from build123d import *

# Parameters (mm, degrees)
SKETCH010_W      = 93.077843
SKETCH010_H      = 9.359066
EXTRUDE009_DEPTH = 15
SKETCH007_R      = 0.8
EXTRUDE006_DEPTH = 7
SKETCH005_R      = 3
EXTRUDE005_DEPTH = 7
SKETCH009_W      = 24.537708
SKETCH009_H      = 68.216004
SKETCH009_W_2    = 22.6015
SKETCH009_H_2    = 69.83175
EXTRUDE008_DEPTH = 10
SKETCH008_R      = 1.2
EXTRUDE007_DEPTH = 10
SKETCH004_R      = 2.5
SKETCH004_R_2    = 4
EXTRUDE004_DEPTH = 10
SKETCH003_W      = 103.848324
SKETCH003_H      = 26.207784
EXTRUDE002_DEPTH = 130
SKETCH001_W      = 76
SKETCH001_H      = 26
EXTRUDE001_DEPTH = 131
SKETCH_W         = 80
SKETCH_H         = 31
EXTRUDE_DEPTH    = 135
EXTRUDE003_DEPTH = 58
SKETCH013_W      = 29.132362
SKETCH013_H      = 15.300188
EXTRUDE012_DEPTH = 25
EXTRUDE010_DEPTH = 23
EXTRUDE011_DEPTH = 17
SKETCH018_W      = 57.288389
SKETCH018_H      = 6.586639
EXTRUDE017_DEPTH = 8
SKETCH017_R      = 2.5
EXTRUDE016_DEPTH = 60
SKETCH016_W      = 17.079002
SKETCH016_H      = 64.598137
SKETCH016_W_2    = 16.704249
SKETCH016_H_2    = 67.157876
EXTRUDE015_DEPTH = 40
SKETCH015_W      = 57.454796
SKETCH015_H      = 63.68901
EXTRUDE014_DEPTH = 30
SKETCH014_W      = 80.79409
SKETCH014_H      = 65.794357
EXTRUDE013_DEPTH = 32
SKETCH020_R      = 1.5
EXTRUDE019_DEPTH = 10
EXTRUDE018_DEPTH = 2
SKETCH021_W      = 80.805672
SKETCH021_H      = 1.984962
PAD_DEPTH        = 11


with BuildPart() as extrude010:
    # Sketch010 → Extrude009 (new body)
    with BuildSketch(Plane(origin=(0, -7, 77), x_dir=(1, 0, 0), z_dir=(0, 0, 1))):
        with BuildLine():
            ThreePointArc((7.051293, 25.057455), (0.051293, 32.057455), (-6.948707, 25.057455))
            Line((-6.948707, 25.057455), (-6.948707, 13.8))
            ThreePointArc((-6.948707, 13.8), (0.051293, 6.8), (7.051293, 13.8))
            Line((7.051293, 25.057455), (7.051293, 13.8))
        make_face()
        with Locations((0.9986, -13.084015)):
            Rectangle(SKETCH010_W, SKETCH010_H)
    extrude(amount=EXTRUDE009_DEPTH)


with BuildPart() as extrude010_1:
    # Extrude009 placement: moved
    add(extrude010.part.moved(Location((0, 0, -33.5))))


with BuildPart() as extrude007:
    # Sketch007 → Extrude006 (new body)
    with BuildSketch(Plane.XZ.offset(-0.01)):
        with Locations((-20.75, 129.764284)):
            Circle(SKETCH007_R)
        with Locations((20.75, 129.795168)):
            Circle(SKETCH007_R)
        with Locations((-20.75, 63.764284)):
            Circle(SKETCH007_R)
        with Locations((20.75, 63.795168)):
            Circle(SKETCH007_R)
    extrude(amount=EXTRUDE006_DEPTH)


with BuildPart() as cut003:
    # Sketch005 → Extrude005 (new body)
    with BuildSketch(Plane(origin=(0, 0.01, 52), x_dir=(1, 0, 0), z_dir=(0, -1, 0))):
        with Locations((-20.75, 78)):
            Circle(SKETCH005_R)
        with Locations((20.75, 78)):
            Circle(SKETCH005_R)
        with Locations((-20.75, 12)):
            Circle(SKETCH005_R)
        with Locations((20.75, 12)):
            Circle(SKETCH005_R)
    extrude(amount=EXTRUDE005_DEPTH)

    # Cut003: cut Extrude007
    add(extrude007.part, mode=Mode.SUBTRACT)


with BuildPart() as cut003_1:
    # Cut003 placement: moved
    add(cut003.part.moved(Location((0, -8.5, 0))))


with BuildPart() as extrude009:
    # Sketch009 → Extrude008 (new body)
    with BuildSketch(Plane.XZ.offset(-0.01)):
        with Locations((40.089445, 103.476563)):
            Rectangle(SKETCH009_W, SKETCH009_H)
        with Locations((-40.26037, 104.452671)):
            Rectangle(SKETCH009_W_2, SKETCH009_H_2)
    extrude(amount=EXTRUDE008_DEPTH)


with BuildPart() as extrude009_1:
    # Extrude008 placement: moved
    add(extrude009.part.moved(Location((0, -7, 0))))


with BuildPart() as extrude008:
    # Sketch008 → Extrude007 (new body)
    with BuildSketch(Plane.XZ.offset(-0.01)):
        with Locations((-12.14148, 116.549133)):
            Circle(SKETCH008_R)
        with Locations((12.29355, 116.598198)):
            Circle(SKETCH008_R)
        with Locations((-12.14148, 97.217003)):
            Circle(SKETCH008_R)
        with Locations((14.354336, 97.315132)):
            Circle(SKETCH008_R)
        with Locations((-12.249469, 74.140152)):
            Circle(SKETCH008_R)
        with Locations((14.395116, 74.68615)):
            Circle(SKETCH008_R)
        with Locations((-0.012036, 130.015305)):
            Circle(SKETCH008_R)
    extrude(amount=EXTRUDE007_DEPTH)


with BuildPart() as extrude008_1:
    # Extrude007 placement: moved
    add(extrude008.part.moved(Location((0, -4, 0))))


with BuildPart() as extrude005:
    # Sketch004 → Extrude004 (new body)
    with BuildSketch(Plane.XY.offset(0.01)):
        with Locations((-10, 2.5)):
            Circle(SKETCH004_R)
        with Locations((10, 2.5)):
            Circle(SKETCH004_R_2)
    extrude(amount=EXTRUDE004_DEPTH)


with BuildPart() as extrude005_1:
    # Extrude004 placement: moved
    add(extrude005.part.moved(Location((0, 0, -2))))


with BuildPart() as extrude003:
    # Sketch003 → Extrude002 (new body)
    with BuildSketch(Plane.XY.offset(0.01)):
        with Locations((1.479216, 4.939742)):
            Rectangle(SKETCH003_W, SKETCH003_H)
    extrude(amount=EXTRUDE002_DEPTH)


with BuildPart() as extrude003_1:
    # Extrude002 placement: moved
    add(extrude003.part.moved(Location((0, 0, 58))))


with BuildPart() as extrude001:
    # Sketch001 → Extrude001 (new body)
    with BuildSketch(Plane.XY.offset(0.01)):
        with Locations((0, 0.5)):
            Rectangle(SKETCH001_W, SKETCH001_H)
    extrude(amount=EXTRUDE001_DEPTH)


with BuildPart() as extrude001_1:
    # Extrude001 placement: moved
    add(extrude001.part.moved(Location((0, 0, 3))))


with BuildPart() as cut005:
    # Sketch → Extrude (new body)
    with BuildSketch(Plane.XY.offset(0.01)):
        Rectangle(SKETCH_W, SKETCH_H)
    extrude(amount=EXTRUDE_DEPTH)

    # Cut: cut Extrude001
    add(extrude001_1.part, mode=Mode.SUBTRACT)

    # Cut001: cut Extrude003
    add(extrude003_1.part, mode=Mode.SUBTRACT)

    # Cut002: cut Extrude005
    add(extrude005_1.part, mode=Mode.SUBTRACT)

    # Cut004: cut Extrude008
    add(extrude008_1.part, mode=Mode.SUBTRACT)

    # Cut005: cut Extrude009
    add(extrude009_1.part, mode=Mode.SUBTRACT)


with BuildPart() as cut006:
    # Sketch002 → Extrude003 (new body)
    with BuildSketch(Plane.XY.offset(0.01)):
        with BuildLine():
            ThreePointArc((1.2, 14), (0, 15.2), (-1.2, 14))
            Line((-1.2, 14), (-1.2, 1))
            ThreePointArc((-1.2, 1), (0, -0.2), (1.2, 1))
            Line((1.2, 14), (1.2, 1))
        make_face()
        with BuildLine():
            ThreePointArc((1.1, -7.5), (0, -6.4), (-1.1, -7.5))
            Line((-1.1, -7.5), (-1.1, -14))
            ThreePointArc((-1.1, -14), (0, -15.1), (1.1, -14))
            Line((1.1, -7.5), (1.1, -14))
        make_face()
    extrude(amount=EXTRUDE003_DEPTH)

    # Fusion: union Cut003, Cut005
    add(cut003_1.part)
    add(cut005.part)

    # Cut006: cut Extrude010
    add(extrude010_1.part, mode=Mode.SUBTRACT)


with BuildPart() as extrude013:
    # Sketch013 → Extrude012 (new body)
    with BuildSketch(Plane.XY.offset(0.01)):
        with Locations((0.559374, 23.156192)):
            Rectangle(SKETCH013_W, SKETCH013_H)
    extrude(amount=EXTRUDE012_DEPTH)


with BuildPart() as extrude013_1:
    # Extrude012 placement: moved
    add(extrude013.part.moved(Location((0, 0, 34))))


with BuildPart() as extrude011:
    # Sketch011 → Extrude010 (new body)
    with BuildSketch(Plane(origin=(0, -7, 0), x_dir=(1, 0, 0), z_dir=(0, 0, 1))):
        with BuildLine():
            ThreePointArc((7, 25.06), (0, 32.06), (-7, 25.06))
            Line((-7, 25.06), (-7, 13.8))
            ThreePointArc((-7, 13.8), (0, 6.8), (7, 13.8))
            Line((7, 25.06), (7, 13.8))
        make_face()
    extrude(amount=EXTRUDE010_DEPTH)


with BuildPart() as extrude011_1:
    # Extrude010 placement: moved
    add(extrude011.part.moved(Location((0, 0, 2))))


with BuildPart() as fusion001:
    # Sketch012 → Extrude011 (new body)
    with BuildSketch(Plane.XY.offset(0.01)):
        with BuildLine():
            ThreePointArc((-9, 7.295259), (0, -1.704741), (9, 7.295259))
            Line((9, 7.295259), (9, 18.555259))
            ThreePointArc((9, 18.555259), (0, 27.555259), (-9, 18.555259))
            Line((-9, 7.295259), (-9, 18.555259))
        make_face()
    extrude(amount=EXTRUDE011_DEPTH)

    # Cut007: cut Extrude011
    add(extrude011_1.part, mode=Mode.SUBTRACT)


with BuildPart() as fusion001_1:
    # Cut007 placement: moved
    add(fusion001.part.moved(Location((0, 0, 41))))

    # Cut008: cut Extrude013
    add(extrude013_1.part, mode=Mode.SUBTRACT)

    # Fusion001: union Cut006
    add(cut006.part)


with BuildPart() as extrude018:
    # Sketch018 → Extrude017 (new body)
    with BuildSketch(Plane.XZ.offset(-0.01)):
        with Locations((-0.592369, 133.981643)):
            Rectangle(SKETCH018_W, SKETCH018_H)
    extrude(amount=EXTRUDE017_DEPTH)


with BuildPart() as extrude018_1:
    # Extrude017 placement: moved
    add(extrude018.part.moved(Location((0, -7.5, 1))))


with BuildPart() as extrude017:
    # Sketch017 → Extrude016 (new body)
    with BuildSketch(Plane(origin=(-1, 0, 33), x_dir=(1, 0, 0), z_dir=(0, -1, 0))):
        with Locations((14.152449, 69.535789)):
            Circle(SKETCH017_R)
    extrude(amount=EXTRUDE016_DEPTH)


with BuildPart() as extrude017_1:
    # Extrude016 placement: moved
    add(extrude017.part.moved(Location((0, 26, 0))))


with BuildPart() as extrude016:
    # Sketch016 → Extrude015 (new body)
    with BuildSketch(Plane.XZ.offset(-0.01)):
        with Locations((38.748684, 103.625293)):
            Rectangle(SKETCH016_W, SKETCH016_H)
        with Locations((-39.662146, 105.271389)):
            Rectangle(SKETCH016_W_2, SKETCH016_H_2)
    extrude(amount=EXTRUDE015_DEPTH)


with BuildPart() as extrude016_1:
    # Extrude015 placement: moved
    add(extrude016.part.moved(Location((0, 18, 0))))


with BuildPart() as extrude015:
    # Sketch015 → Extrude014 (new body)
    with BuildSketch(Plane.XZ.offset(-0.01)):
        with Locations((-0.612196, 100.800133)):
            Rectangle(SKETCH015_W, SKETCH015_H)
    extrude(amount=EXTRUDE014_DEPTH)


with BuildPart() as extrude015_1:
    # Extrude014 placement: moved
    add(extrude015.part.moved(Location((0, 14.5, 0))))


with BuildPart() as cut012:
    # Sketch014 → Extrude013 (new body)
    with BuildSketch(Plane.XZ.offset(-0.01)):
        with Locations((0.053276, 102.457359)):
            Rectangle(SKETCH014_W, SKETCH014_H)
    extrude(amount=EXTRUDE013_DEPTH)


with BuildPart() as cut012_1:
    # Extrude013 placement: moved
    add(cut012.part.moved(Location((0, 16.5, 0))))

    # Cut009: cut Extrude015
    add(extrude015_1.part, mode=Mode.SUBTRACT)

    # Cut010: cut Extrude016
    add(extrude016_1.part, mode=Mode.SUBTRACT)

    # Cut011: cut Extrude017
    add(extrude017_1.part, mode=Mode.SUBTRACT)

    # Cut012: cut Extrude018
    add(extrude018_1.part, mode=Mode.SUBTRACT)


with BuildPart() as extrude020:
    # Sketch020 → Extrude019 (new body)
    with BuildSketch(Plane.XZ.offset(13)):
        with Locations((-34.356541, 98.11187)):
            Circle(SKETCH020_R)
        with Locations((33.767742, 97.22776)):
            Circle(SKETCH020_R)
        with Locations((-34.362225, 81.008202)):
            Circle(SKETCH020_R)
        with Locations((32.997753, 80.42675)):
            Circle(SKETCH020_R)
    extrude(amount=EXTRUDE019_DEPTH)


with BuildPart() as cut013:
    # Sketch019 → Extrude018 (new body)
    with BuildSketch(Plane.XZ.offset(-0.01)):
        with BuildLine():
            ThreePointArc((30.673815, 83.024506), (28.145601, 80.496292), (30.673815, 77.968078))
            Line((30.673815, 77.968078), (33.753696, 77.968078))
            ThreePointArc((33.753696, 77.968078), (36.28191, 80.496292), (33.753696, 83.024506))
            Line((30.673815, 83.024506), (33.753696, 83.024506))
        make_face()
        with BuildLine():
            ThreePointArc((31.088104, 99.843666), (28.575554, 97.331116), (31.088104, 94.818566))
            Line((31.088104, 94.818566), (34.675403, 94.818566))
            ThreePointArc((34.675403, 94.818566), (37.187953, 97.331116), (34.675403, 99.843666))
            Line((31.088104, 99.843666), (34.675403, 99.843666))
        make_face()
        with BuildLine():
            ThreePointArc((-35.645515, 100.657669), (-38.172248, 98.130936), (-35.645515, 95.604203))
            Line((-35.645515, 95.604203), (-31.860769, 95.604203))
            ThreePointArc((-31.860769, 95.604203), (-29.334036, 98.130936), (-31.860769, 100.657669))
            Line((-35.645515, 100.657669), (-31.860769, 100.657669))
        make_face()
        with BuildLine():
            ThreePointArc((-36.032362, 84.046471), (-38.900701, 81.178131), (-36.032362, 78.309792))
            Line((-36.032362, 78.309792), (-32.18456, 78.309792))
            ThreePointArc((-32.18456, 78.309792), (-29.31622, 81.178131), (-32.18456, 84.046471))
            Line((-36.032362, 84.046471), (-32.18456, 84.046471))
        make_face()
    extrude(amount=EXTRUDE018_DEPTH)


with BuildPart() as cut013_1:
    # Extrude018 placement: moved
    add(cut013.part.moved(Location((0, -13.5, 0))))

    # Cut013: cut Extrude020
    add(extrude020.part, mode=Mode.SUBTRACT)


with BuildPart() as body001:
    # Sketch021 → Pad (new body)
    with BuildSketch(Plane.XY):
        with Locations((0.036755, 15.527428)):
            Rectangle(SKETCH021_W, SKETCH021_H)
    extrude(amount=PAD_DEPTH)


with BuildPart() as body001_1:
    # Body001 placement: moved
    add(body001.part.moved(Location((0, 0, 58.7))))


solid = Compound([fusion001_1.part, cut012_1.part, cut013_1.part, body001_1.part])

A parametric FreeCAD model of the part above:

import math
import FreeCAD as App
import Part
import Sketcher

V = App.Vector
Q = App.Units.Quantity


def add_polygon(sketch, points):
    """Adds a closed chain of lines whose ends are joined by coincident constraints."""
    first, n = sketch.GeometryCount, len(points)
    for a, b in zip(points, points[1:] + points[:1]):
        sketch.addGeometry(Part.LineSegment(App.Vector(*a, 0), App.Vector(*b, 0)), False)
    for i in range(n):
        sketch.addConstraint(Sketcher.Constraint("Coincident", first + i, 2, first + (i + 1) % n, 1))

doc = App.newDocument("Part")
body = doc.addObject("PartDesign::Body", "Body")
body.AllowCompound = True

sketch1 = body.newObject("Sketcher::SketchObject", "Sketch")
sketch1.AttachmentSupport = (doc.getObject("XY_Plane"), [""])
sketch1.MapMode = "FlatFace"
sketch1.AttachmentOffset = App.Placement(V(0, 0, 77), App.Rotation())
sketch1.addGeometry(Part.ArcOfCircle(Part.Circle(V(0, 18, 0), V(0, 0, 1), 7), math.radians(0), math.radians(180)), False)
sketch1.addGeometry(Part.LineSegment(V(-7, 18, 0), V(-7, 7, 0)), False)
sketch1.addGeometry(Part.ArcOfCircle(Part.Circle(V(0, 7, 0), V(0, 0, 1), 7), math.radians(180), math.radians(360)), False)
sketch1.addGeometry(Part.LineSegment(V(7, 7, 0), V(7, 18, 0)), False)
add_polygon(sketch1, [(-46, -15), (-46, -25), (48, -25), (48, -15)])
sketch1.addConstraint([
    Sketcher.Constraint("Tangent", 0, 2, 1, 1),
    Sketcher.Constraint("Tangent", 1, 2, 2, 1),
    Sketcher.Constraint("Tangent", 2, 2, 3, 1),
    Sketcher.Constraint("Tangent", 3, 2, 0, 1),
    Sketcher.Constraint("Vertical", 1),
    Sketcher.Constraint("Vertical", 3),
    Sketcher.Constraint("Vertical", 4),
    Sketcher.Constraint("Horizontal", 5),
    Sketcher.Constraint("Vertical", 6),
    Sketcher.Constraint("Horizontal", 7),
    Sketcher.Constraint("Radius", 0, Q("7 mm")),
    Sketcher.Constraint("DistanceY", -1, 1, 2, 3, Q("6.8 mm")),
    Sketcher.Constraint("DistanceX", 5, 1, 5, 2, Q("93.077843 mm")),
    Sketcher.Constraint("DistanceY", 1, 2, 1, 1, Q("11.257455 mm")),
    Sketcher.Constraint("DistanceY", 4, 2, 4, 1, Q("9.359066 mm")),
    Sketcher.Constraint("DistanceX", 4, 2, -1, 1, Q("45.540321 mm")),
    Sketcher.Constraint("DistanceY", 4, 2, -1, 1, Q("24.763548 mm")),
    Sketcher.Constraint("DistanceX", 2, 2, 5, 2, Q("40.486228 mm")),
])
pad1 = body.newObject("PartDesign::Pad", "Pad")
pad1.Profile = sketch1
pad1.Length = 15
body2 = doc.addObject("PartDesign::Body", "Body001")
body2.AllowCompound = True
doc.recompute()

body.Placement = App.Placement(V(0, 0, -33.5), App.Rotation(V(0, 0, 1), 0))
boolean = body2.newObject("PartDesign::Boolean", "Boolean")
boolean.Type = "Fuse"
boolean.addObjects([body])
body3 = doc.addObject("PartDesign::Body", "Body002")
body3.AllowCompound = True

sketch2 = body3.newObject("Sketcher::SketchObject", "Sketch001")
sketch2.AttachmentSupport = (doc.getObject("XZ_Plane002"), [""])
sketch2.MapMode = "FlatFace"
sketch2.AttachmentOffset = App.Placement(V(0, 0, -0.01), App.Rotation())
sketch2.addGeometry([
    Part.Circle(V(-20.8, 129.8, 0), V(0, 0, 1), 0.8),
    Part.Circle(V(20.8, 129.8, 0), V(0, 0, 1), 0.8),
    Part.Circle(V(-20.8, 63.8, 0), V(0, 0, 1), 0.8),
    Part.Circle(V(20.8, 63.8, 0), V(0, 0, 1), 0.8),
], False)
sketch2.addConstraint([
    Sketcher.Constraint("Equal", 0, 1),
    Sketcher.Constraint("Equal", 1, 2),
    Sketcher.Constraint("Equal", 2, 3),
    Sketcher.Constraint("Vertical", 0, 3, 2, 3),
    Sketcher.Constraint("Vertical", 1, 3, 3, 3),
    Sketcher.Constraint("Diameter", 0, Q("1.6 mm")),
    Sketcher.Constraint("DistanceY", 2, 3, 0, 3, Q("66 mm")),
    Sketcher.Constraint("DistanceY", 3, 3, 1, 3, Q("66 mm")),
    Sketcher.Constraint("DistanceX", 0, 3, 1, 3, Q("41.5 mm")),
    Sketcher.Constraint("DistanceX", 0, 3, -1, 1, Q("20.75 mm")),
    Sketcher.Constraint("DistanceY", -1, 1, 0, 3, Q("129.764284 mm")),
    Sketcher.Constraint("DistanceY", -1, 1, 1, 3, Q("129.795168 mm")),
])
pad2 = body3.newObject("PartDesign::Pad", "Pad001")
pad2.Profile = sketch2
pad2.Length = 7
body4 = doc.addObject("PartDesign::Body", "Body003")
body4.AllowCompound = True

sketch3 = body4.newObject("Sketcher::SketchObject", "Sketch002")
sketch3.AttachmentSupport = (doc.getObject("XZ_Plane003"), [""])
sketch3.MapMode = "FlatFace"
sketch3.AttachmentOffset = App.Placement(V(0, 0, -0.01), App.Rotation())
sketch3.addGeometry([
    Part.Circle(V(-20.8, 130, 0), V(0, 0, 1), 3),
    Part.Circle(V(20.8, 130, 0), V(0, 0, 1), 3),
    Part.Circle(V(-20.8, 64, 0), V(0, 0, 1), 3),
    Part.Circle(V(20.8, 64, 0), V(0, 0, 1), 3),
], False)
sketch3.addConstraint([
    Sketcher.Constraint("Equal", 0, 1),
    Sketcher.Constraint("Equal", 1, 2),
    Sketcher.Constraint("Equal", 2, 3),
    Sketcher.Constraint("Symmetric", 0, 3, 1, 3, -2),
    Sketcher.Constraint("Symmetric", 2, 3, 3, 3, -2),
    Sketcher.Constraint("Vertical", 0, 3, 2, 3),
    Sketcher.Constraint("Diameter", 0, Q("6 mm")),
    Sketcher.Constraint("DistanceY", -1, 1, 0, 3, Q("130 mm")),
    Sketcher.Constraint("DistanceY", -1, 1, 2, 3, Q("64 mm")),
    Sketcher.Constraint("DistanceX", 0, 3, 1, 3, Q("41.5 mm")),
])
pad3 = body4.newObject("PartDesign::Pad", "Pad002")
pad3.Profile = sketch3
pad3.Length = 7
doc.recompute()

boolean2 = body4.newObject("PartDesign::Boolean", "Boolean001")
boolean2.Type = "Cut"
boolean2.addObjects([body3])
body5 = doc.addObject("PartDesign::Body", "Body004")
body5.AllowCompound = True
doc.recompute()

body4.Placement = App.Placement(V(0, -8.5, 0), App.Rotation(V(0, 0, 1), 0))
boolean3 = body5.newObject("PartDesign::Boolean", "Boolean002")
boolean3.Type = "Fuse"
boolean3.addObjects([body4])
body6 = doc.addObject("PartDesign::Body", "Body005")
body6.AllowCompound = True

sketch4 = body6.newObject("Sketcher::SketchObject", "Sketch003")
sketch4.AttachmentSupport = (doc.getObject("XZ_Plane005"), [""])
sketch4.MapMode = "FlatFace"
sketch4.AttachmentOffset = App.Placement(V(0, 0, -0.01), App.Rotation())
add_polygon(sketch4, [(28, 138), (28, 69), (52, 69), (52, 138)])
add_polygon(sketch4, [(-52, 139), (-52, 70), (-29, 70), (-29, 139)])
sketch4.addConstraint([
    Sketcher.Constraint("Vertical", 0),
    Sketcher.Constraint("Horizontal", 1),
    Sketcher.Constraint("Vertical", 2),
    Sketcher.Constraint("Horizontal", 3),
    Sketcher.Constraint("Vertical", 4),
    Sketcher.Constraint("Horizontal", 5),
    Sketcher.Constraint("Vertical", 6),
    Sketcher.Constraint("Horizontal", 7),
    Sketcher.Constraint("DistanceX", 5, 1, 5, 2, Q("22.6015 mm")),
    Sketcher.Constraint("DistanceX", 1, 1, 1, 2, Q("24.537708 mm")),
    Sketcher.Constraint("DistanceY", 4, 2, 4, 1, Q("69.83175 mm")),
    Sketcher.Constraint("DistanceX", -1, 1, 1, 2, Q("52.358299 mm")),
    Sketcher.Constraint("DistanceY", 0, 2, 0, 1, Q("68.216004 mm")),
    Sketcher.Constraint("DistanceY", -1, 1, 0, 2, Q("69.368561 mm")),
    Sketcher.Constraint("DistanceX", 4, 2, -1, 1, Q("51.56112 mm")),
    Sketcher.Constraint("DistanceY", 4, 2, 3, 2, Q("68.047769 mm")),
])
pad4 = body6.newObject("PartDesign::Pad", "Pad003")
pad4.Profile = sketch4
pad4.Length = 10
body7 = doc.addObject("PartDesign::Body", "Body006")
body7.AllowCompound = True
doc.recompute()

body6.Placement = App.Placement(V(0, -7, 0), App.Rotation(V(0, 0, 1), 0))
boolean4 = body7.newObject("PartDesign::Boolean", "Boolean003")
boolean4.Type = "Fuse"
boolean4.addObjects([body6])
body8 = doc.addObject("PartDesign::Body", "Body007")
body8.AllowCompound = True

sketch5 = body8.newObject("Sketcher::SketchObject", "Sketch004")
sketch5.AttachmentSupport = (doc.getObject("XZ_Plane007"), [""])
sketch5.MapMode = "FlatFace"
sketch5.AttachmentOffset = App.Placement(V(0, 0, -0.01), App.Rotation())
sketch5.addGeometry([
    Part.Circle(V(-12.1, 116.5, 0), V(0, 0, 1), 1.2),
    Part.Circle(V(12.3, 116.6, 0), V(0, 0, 1), 1.2),
    Part.Circle(V(-12.1, 97.2, 0), V(0, 0, 1), 1.2),
    Part.Circle(V(14.4, 97.3, 0), V(0, 0, 1), 1.2),
    Part.Circle(V(-12.2, 74.1, 0), V(0, 0, 1), 1.2),
    Part.Circle(V(14.4, 74.7, 0), V(0, 0, 1), 1.2),
    Part.Circle(V(0, 130, 0), V(0, 0, 1), 1.2),
], False)
sketch5.addConstraint([
    Sketcher.Constraint("Equal", 0, 1),
    Sketcher.Constraint("Equal", 1, 2),
    Sketcher.Constraint("Equal", 2, 3),
    Sketcher.Constraint("Equal", 3, 4),
    Sketcher.Constraint("Equal", 4, 5),
    Sketcher.Constraint("Equal", 5, 6),
    Sketcher.Constraint("Vertical", 0, 3, 2, 3),
    Sketcher.Constraint("Diameter", 0, Q("2.4 mm")),
    Sketcher.Constraint("DistanceY", 3, 3, 0, 3, Q("19.234001 mm")),
    Sketcher.Constraint("DistanceX", 0, 3, -1, 1, Q("12.14148 mm")),
    Sketcher.Constraint("DistanceX", -1, 1, 1, 3, Q("12.29355 mm")),
    Sketcher.Constraint("DistanceX", 4, 3, -1, 1, Q("12.249469 mm")),
    Sketcher.Constraint("DistanceY", -1, 1, 4, 3, Q("74.140152 mm")),
    Sketcher.Constraint("DistanceY", -1, 1, 5, 3, Q("74.68615 mm")),
    Sketcher.Constraint("DistanceY", 2, 3, 0, 3, Q("19.33213 mm")),
    Sketcher.Constraint("DistanceY", 4, 3, 2, 3, Q("23.076851 mm")),
    Sketcher.Constraint("DistanceX", 3, 3, 5, 3, Q("0.04078 mm")),
    Sketcher.Constraint("DistanceY", -1, 1, 1, 3, Q("116.598198 mm")),
    Sketcher.Constraint("DistanceX", -1, 1, 3, 3, Q("14.354336 mm")),
    Sketcher.Constraint("DistanceX", 6, 3, -1, 1, Q("0.012036 mm")),
    Sketcher.Constraint("DistanceY", -1, 1, 6, 3, Q("130.015305 mm")),
])
pad5 = body8.newObject("PartDesign::Pad", "Pad004")
pad5.Profile = sketch5
pad5.Length = 10
body9 = doc.addObject("PartDesign::Body", "Body008")
body9.AllowCompound = True
doc.recompute()

body8.Placement = App.Placement(V(0, -4, 0), App.Rotation(V(0, 0, 1), 0))
boolean5 = body9.newObject("PartDesign::Boolean", "Boolean004")
boolean5.Type = "Fuse"
boolean5.addObjects([body8])
body10 = doc.addObject("PartDesign::Body", "Body009")
body10.AllowCompound = True

sketch6 = body10.newObject("Sketcher::SketchObject", "Sketch005")
sketch6.AttachmentSupport = (doc.getObject("XY_Plane009"), [""])
sketch6.MapMode = "FlatFace"
sketch6.AttachmentOffset = App.Placement(V(0, 0, 0.01), App.Rotation())
sketch6.addGeometry([
    Part.Circle(V(-10, 2.5, 0), V(0, 0, 1), 2.5),
    Part.Circle(V(10, 2.5, 0), V(0, 0, 1), 4),
], False)
sketch6.addConstraint([
    Sketcher.Constraint("Symmetric", 0, 3, 1, 3, -2),
    Sketcher.Constraint("Diameter", 0, Q("5 mm")),
    Sketcher.Constraint("Diameter", 1, Q("8 mm")),
    Sketcher.Constraint("DistanceX", 0, 3, -1, 1, Q("10 mm")),
    Sketcher.Constraint("DistanceY", -1, 1, 0, 3, Q("2.5 mm")),
])
pad6 = body10.newObject("PartDesign::Pad", "Pad005")
pad6.Profile = sketch6
pad6.Length = 10
body11 = doc.addObject("PartDesign::Body", "Body010")
body11.AllowCompound = True
doc.recompute()

body10.Placement = App.Placement(V(0, 0, -2), App.Rotation(V(0, 0, 1), 0))
boolean6 = body11.newObject("PartDesign::Boolean", "Boolean005")
boolean6.Type = "Fuse"
boolean6.addObjects([body10])
body12 = doc.addObject("PartDesign::Body", "Body011")

sketch7 = body12.newObject("Sketcher::SketchObject", "Sketch006")
sketch7.AttachmentSupport = (doc.getObject("XY_Plane011"), [""])
sketch7.MapMode = "FlatFace"
sketch7.AttachmentOffset = App.Placement(V(0, 0, 0.01), App.Rotation())
add_polygon(sketch7, [(-50, 18), (-50, -8), (53, -8), (53, 18)])
sketch7.addConstraint([
    Sketcher.Constraint("Vertical", 0),
    Sketcher.Constraint("Horizontal", 1),
    Sketcher.Constraint("Vertical", 2),
    Sketcher.Constraint("Horizontal", 3),
    Sketcher.Constraint("DistanceX", 1, 1, 1, 2, Q("103.848324 mm")),
    Sketcher.Constraint("DistanceY", 0, 2, 0, 1, Q("26.207784 mm")),
    Sketcher.Constraint("DistanceY", 0, 2, -1, 1, Q("8.16415 mm")),
    Sketcher.Constraint("DistanceX", 0, 2, -1, 1, Q("50.444946 mm")),
])
pad7 = body12.newObject("PartDesign::Pad", "Pad006")
pad7.Profile = sketch7
pad7.Length = 130
body13 = doc.addObject("PartDesign::Body", "Body012")
doc.recompute()

body12.Placement = App.Placement(V(0, 0, 58), App.Rotation(V(0, 0, 1), 0))
boolean7 = body13.newObject("PartDesign::Boolean", "Boolean006")
boolean7.Type = "Fuse"
boolean7.addObjects([body12])
body14 = doc.addObject("PartDesign::Body", "Body013")

sketch8 = body14.newObject("Sketcher::SketchObject", "Sketch007")
sketch8.AttachmentSupport = (doc.getObject("XY_Plane013"), [""])
sketch8.MapMode = "FlatFace"
sketch8.AttachmentOffset = App.Placement(V(0, 0, 0.01), App.Rotation())
add_polygon(sketch8, [(-38, 14), (-38, -12), (38, -12), (38, 14)])
sketch8.addConstraint([
    Sketcher.Constraint("Vertical", 0),
    Sketcher.Constraint("Horizontal", 1),
    Sketcher.Constraint("Vertical", 2),
    Sketcher.Constraint("Horizontal", 3),
    Sketcher.Constraint("DistanceX", 1, 1, 1, 2, Q("76 mm")),
    Sketcher.Constraint("DistanceY", 0, 2, 0, 1, Q("26 mm")),
    Sketcher.Constraint("DistanceX", 0, 2, -1, 1, Q("38 mm")),
    Sketcher.Constraint("DistanceY", 0, 2, -1, 1, Q("12.5 mm")),
])
pad8 = body14.newObject("PartDesign::Pad", "Pad007")
pad8.Profile = sketch8
pad8.Length = 131
body15 = doc.addObject("PartDesign::Body", "Body014")
doc.recompute()

body14.Placement = App.Placement(V(0, 0, 3), App.Rotation(V(0, 0, 1), 0))
boolean8 = body15.newObject("PartDesign::Boolean", "Boolean007")
boolean8.Type = "Fuse"
boolean8.addObjects([body14])
body16 = doc.addObject("PartDesign::Body", "Body015")

sketch9 = body16.newObject("Sketcher::SketchObject", "Sketch008")
sketch9.AttachmentSupport = (doc.getObject("XY_Plane015"), [""])
sketch9.MapMode = "FlatFace"
sketch9.AttachmentOffset = App.Placement(V(0, 0, 0.01), App.Rotation())
add_polygon(sketch9, [(-40, 16), (-40, -16), (40, -16), (40, 16)])
sketch9.addConstraint([
    Sketcher.Constraint("Vertical", 0),
    Sketcher.Constraint("Horizontal", 1),
    Sketcher.Constraint("Vertical", 2),
    Sketcher.Constraint("Horizontal", 3),
    Sketcher.Constraint("Symmetric", 0, 2, 2, 2, -1, 1),
    Sketcher.Constraint("DistanceX", 1, 1, 1, 2, Q("80 mm")),
    Sketcher.Constraint("DistanceY", 0, 2, 0, 1, Q("31 mm")),
])
pad9 = body16.newObject("PartDesign::Pad", "Pad008")
pad9.Profile = sketch9
pad9.Length = 135
doc.recompute()

boolean9 = body16.newObject("PartDesign::Boolean", "Boolean008")
boolean9.Type = "Cut"
boolean9.addObjects([body15])
doc.recompute()

boolean10 = body16.newObject("PartDesign::Boolean", "Boolean009")
boolean10.Type = "Cut"
boolean10.addObjects([body13])
doc.recompute()

boolean11 = body16.newObject("PartDesign::Boolean", "Boolean010")
boolean11.Type = "Cut"
boolean11.addObjects([body11])
doc.recompute()

boolean12 = body16.newObject("PartDesign::Boolean", "Boolean011")
boolean12.Type = "Cut"
boolean12.addObjects([body9])
doc.recompute()

boolean13 = body16.newObject("PartDesign::Boolean", "Boolean012")
boolean13.Type = "Cut"
boolean13.addObjects([body7])
body17 = doc.addObject("PartDesign::Body", "Body016")
body17.AllowCompound = True

sketch10 = body17.newObject("Sketcher::SketchObject", "Sketch009")
sketch10.AttachmentSupport = (doc.getObject("XY_Plane016"), [""])
sketch10.MapMode = "FlatFace"
sketch10.AttachmentOffset = App.Placement(V(0, 0, 0.01), App.Rotation())
sketch10.addGeometry([
    Part.ArcOfCircle(Part.Circle(V(0, 14, 0), V(0, 0, 1), 1.2), math.radians(0), math.radians(180)),
    Part.LineSegment(V(-1.2, 14, 0), V(-1.2, 1, 0)),
    Part.ArcOfCircle(Part.Circle(V(0, 1, 0), V(0, 0, 1), 1.2), math.radians(180), math.radians(360)),
    Part.LineSegment(V(1.2, 1, 0), V(1.2, 14, 0)),
    Part.ArcOfCircle(Part.Circle(V(0, -7.5, 0), V(0, 0, 1), 1.1), math.radians(0), math.radians(180)),
    Part.LineSegment(V(-1.1, -7.5, 0), V(-1.1, -14, 0)),
    Part.ArcOfCircle(Part.Circle(V(0, -14, 0), V(0, 0, 1), 1.1), math.radians(180), math.radians(360)),
    Part.LineSegment(V(1.1, -14, 0), V(1.1, -7.5, 0)),
], False)
sketch10.addConstraint([
    Sketcher.Constraint("Tangent", 0, 2, 1, 1),
    Sketcher.Constraint("Tangent", 1, 2, 2, 1),
    Sketcher.Constraint("Tangent", 2, 2, 3, 1),
    Sketcher.Constraint("Tangent", 3, 2, 0, 1),
    Sketcher.Constraint("Tangent", 4, 2, 5, 1),
    Sketcher.Constraint("Tangent", 5, 2, 6, 1),
    Sketcher.Constraint("Tangent", 6, 2, 7, 1),
    Sketcher.Constraint("Tangent", 7, 2, 4, 1),
    Sketcher.Constraint("Vertical", 1),
    Sketcher.Constraint("Vertical", 3),
    Sketcher.Constraint("Vertical", 5),
    Sketcher.Constraint("Vertical", 7),
    Sketcher.Constraint("Symmetric", 0, 3, 6, 3, -1, 1),
    Sketcher.Constraint("PointOnObject", 0, 3, -2),
    Sketcher.Constraint("Radius", 0, Q("1.2 mm")),
    Sketcher.Constraint("Radius", 4, Q("1.1 mm")),
    Sketcher.Constraint("DistanceY", 1, 2, 1, 1, Q("13 mm")),
    Sketcher.Constraint("DistanceY", 5, 2, 5, 1, Q("6.5 mm")),
    Sketcher.Constraint("DistanceY", -1, 1, 0, 3, Q("14 mm")),
])
pad10 = body17.newObject("PartDesign::Pad", "Pad009")
pad10.Profile = sketch10
pad10.Length = 58
doc.recompute()

boolean14 = body17.newObject("PartDesign::Boolean", "Boolean013")
boolean14.Type = "Fuse"
boolean14.addObjects([body5])
doc.recompute()

boolean15 = body17.newObject("PartDesign::Boolean", "Boolean014")
boolean15.Type = "Fuse"
boolean15.addObjects([body16])
doc.recompute()

boolean16 = body17.newObject("PartDesign::Boolean", "Boolean015")
boolean16.Type = "Cut"
boolean16.addObjects([body2])
body18 = doc.addObject("PartDesign::Body", "Body017")

sketch11 = body18.newObject("Sketcher::SketchObject", "Sketch010")
sketch11.AttachmentSupport = (doc.getObject("XY_Plane017"), [""])
sketch11.MapMode = "FlatFace"
sketch11.AttachmentOffset = App.Placement(V(0, 0, 0.01), App.Rotation())
add_polygon(sketch11, [(-14, 31), (-14, 16), (15, 16), (15, 31)])
sketch11.addConstraint([
    Sketcher.Constraint("Vertical", 0),
    Sketcher.Constraint("Horizontal", 1),
    Sketcher.Constraint("Vertical", 2),
    Sketcher.Constraint("Horizontal", 3),
    Sketcher.Constraint("DistanceX", 1, 1, 1, 2, Q("29.132362 mm")),
    Sketcher.Constraint("DistanceY", 0, 2, 0, 1, Q("15.300188 mm")),
    Sketcher.Constraint("DistanceX", 0, 2, -1, 1, Q("14.006807 mm")),
    Sketcher.Constraint("DistanceY", -1, 1, 0, 2, Q("15.506098 mm")),
])
pad11 = body18.newObject("PartDesign::Pad", "Pad010")
pad11.Profile = sketch11
pad11.Length = 25
body19 = doc.addObject("PartDesign::Body", "Body018")
doc.recompute()

body18.Placement = App.Placement(V(0, 0, 34), App.Rotation(V(0, 0, 1), 0))
boolean17 = body19.newObject("PartDesign::Boolean", "Boolean016")
boolean17.Type = "Fuse"
boolean17.addObjects([body18])
body20 = doc.addObject("PartDesign::Body", "Body019")

sketch12 = body20.newObject("Sketcher::SketchObject", "Sketch011")
sketch12.AttachmentSupport = (doc.getObject("XY_Plane019"), [""])
sketch12.MapMode = "FlatFace"
sketch12.addGeometry([
    Part.ArcOfCircle(Part.Circle(V(0, 18, 0), V(0, 0, 1), 7), math.radians(0), math.radians(180)),
    Part.LineSegment(V(-7, 18, 0), V(-7, 7, 0)),
    Part.ArcOfCircle(Part.Circle(V(0, 7, 0), V(0, 0, 1), 7), math.radians(180), math.radians(360)),
    Part.LineSegment(V(7, 7, 0), V(7, 18, 0)),
], False)
sketch12.addConstraint([
    Sketcher.Constraint("Tangent", 0, 2, 1, 1),
    Sketcher.Constraint("Tangent", 1, 2, 2, 1),
    Sketcher.Constraint("Tangent", 2, 2, 3, 1),
    Sketcher.Constraint("Tangent", 3, 2, 0, 1),
    Sketcher.Constraint("Vertical", 1),
    Sketcher.Constraint("Vertical", 3),
    Sketcher.Constraint("PointOnObject", 0, 3, -2),
    Sketcher.Constraint("Radius", 0, Q("7 mm")),
    Sketcher.Constraint("DistanceY", 1, 2, 1, 1, Q("11.26 mm")),
    Sketcher.Constraint("DistanceY", -1, 1, 2, 3, Q("6.8 mm")),
])
pad12 = body20.newObject("PartDesign::Pad", "Pad011")
pad12.Profile = sketch12
pad12.Length = 23
body21 = doc.addObject("PartDesign::Body", "Body020")
doc.recompute()

body20.Placement = App.Placement(V(0, 0, 2), App.Rotation(V(0, 0, 1), 0))
boolean18 = body21.newObject("PartDesign::Boolean", "Boolean017")
boolean18.Type = "Fuse"
boolean18.addObjects([body20])
body22 = doc.addObject("PartDesign::Body", "Body021")

sketch13 = body22.newObject("Sketcher::SketchObject", "Sketch012")
sketch13.AttachmentSupport = (doc.getObject("XY_Plane021"), [""])
sketch13.MapMode = "FlatFace"
sketch13.AttachmentOffset = App.Placement(V(0, 0, 0.01), App.Rotation())
sketch13.addGeometry([
    Part.ArcOfCircle(Part.Circle(V(0, 7, 0), V(0, 0, 1), 9), math.radians(180), math.radians(360)),
    Part.LineSegment(V(9, 7, 0), V(9, 19, 0)),
    Part.ArcOfCircle(Part.Circle(V(0, 19, 0), V(0, 0, 1), 9), math.radians(0), math.radians(180)),
    Part.LineSegment(V(-9, 19, 0), V(-9, 7, 0)),
], False)
sketch13.addConstraint([
    Sketcher.Constraint("Tangent", 0, 2, 1, 1),
    Sketcher.Constraint("Tangent", 1, 2, 2, 1),
    Sketcher.Constraint("Tangent", 2, 2, 3, 1),
    Sketcher.Constraint("Tangent", 3, 2, 0, 1),
    Sketcher.Constraint("Vertical", 1),
    Sketcher.Constraint("Vertical", 3),
    Sketcher.Constraint("PointOnObject", 0, 3, -2),
    Sketcher.Constraint("Radius", 0, Q("9 mm")),
    Sketcher.Constraint("DistanceY", 1, 1, 1, 2, Q("11.26 mm")),
    Sketcher.Constraint("DistanceY", -1, 1, 0, 3, Q("7.295259 mm")),
])
pad13 = body22.newObject("PartDesign::Pad", "Pad012")
pad13.Profile = sketch13
pad13.Length = 17
doc.recompute()

boolean19 = body22.newObject("PartDesign::Boolean", "Boolean018")
boolean19.Type = "Cut"
boolean19.addObjects([body21])
body23 = doc.addObject("PartDesign::Body", "Body022")
doc.recompute()

body22.Placement = App.Placement(V(0, 0, 41), App.Rotation(V(0, 0, 1), 0))
boolean20 = body23.newObject("PartDesign::Boolean", "Boolean019")
boolean20.Type = "Fuse"
boolean20.addObjects([body22])
doc.recompute()

boolean21 = body23.newObject("PartDesign::Boolean", "Boolean020")
boolean21.Type = "Cut"
boolean21.addObjects([body19])
doc.recompute()

boolean22 = body23.newObject("PartDesign::Boolean", "Boolean021")
boolean22.Type = "Fuse"
boolean22.addObjects([body17])
body24 = doc.addObject("PartDesign::Body", "Body023")

sketch14 = body24.newObject("Sketcher::SketchObject", "Sketch013")
sketch14.AttachmentSupport = (doc.getObject("XZ_Plane023"), [""])
sketch14.MapMode = "FlatFace"
sketch14.AttachmentOffset = App.Placement(V(0, 0, -0.01), App.Rotation())
add_polygon(sketch14, [(-29, 137), (-29, 131), (28, 131), (28, 137)])
sketch14.addConstraint([
    Sketcher.Constraint("Vertical", 0),
    Sketcher.Constraint("Horizontal", 1),
    Sketcher.Constraint("Vertical", 2),
    Sketcher.Constraint("Horizontal", 3),
    Sketcher.Constraint("DistanceX", 1, 1, 1, 2, Q("57.288389 mm")),
    Sketcher.Constraint("DistanceY", 0, 2, 0, 1, Q("6.586639 mm")),
    Sketcher.Constraint("DistanceX", 0, 2, -1, 1, Q("29.236563 mm")),
    Sketcher.Constraint("DistanceY", -1, 1, 0, 2, Q("130.688323 mm")),
])
pad14 = body24.newObject("PartDesign::Pad", "Pad013")
pad14.Profile = sketch14
pad14.Length = 8
body25 = doc.addObject("PartDesign::Body", "Body024")
doc.recompute()

body24.Placement = App.Placement(V(0, -7.5, 1), App.Rotation(V(0, 0, 1), 0))
boolean23 = body25.newObject("PartDesign::Boolean", "Boolean022")
boolean23.Type = "Fuse"
boolean23.addObjects([body24])
body26 = doc.addObject("PartDesign::Body", "Body025")

sketch15 = body26.newObject("Sketcher::SketchObject", "Sketch014")
sketch15.AttachmentSupport = (doc.getObject("XZ_Plane025"), [""])
sketch15.MapMode = "FlatFace"
sketch15.addGeometry(Part.Circle(V(13.2, 102.5, 0), V(0, 0, 1), 2.5), False)
sketch15.addConstraint([
    Sketcher.Constraint("Diameter", 0, Q("5 mm")),
    Sketcher.Constraint("DistanceX", -1, 1, 0, 3, Q("13.152449 mm")),
    Sketcher.Constraint("DistanceY", -1, 1, 0, 3, Q("102.535789 mm")),
])
pad15 = body26.newObject("PartDesign::Pad", "Pad014")
pad15.Profile = sketch15
pad15.Length = 60
body27 = doc.addObject("PartDesign::Body", "Body026")
doc.recompute()

body26.Placement = App.Placement(V(0, 26, 0), App.Rotation(V(0, 0, 1), 0))
boolean24 = body27.newObject("PartDesign::Boolean", "Boolean023")
boolean24.Type = "Fuse"
boolean24.addObjects([body26])
body28 = doc.addObject("PartDesign::Body", "Body027")
body28.AllowCompound = True

sketch16 = body28.newObject("Sketcher::SketchObject", "Sketch015")
sketch16.AttachmentSupport = (doc.getObject("XZ_Plane027"), [""])
sketch16.MapMode = "FlatFace"
sketch16.AttachmentOffset = App.Placement(V(0, 0, -0.01), App.Rotation())
add_polygon(sketch16, [(30, 136), (30, 71), (47, 71), (47, 136)])
add_polygon(sketch16, [(-48, 139), (-48, 72), (-31, 72), (-31, 139)])
sketch16.addConstraint([
    Sketcher.Constraint("Vertical", 0),
    Sketcher.Constraint("Horizontal", 1),
    Sketcher.Constraint("Vertical", 2),
    Sketcher.Constraint("Horizontal", 3),
    Sketcher.Constraint("Vertical", 4),
    Sketcher.Constraint("Horizontal", 5),
    Sketcher.Constraint("Vertical", 6),
    Sketcher.Constraint("Horizontal", 7),
    Sketcher.Constraint("DistanceX", 1, 1, 1, 2, Q("17.079002 mm")),
    Sketcher.Constraint("DistanceX", 5, 1, 5, 2, Q("16.704249 mm")),
    Sketcher.Constraint("DistanceY", 0, 2, 0, 1, Q("64.598137 mm")),
    Sketcher.Constraint("DistanceY", 4, 2, 4, 1, Q("67.157876 mm")),
    Sketcher.Constraint("DistanceY", -1, 1, 2, 2, Q("135.924362 mm")),
    Sketcher.Constraint("DistanceX", 4, 2, -1, 1, Q("48.014271 mm")),
    Sketcher.Constraint("DistanceY", -1, 1, 4, 2, Q("71.692451 mm")),
    Sketcher.Constraint("DistanceX", -1, 1, 0, 2, Q("30.209183 mm")),
])
pad16 = body28.newObject("PartDesign::Pad", "Pad015")
pad16.Profile = sketch16
pad16.Length = 40
body29 = doc.addObject("PartDesign::Body", "Body028")
body29.AllowCompound = True
doc.recompute()

body28.Placement = App.Placement(V(0, 18, 0), App.Rotation(V(0, 0, 1), 0))
boolean25 = body29.newObject("PartDesign::Boolean", "Boolean024")
boolean25.Type = "Fuse"
boolean25.addObjects([body28])
body30 = doc.addObject("PartDesign::Body", "Body029")

sketch17 = body30.newObject("Sketcher::SketchObject", "Sketch016")
sketch17.AttachmentSupport = (doc.getObject("XZ_Plane029"), [""])
sketch17.MapMode = "FlatFace"
sketch17.AttachmentOffset = App.Placement(V(0, 0, -0.01), App.Rotation())
add_polygon(sketch17, [(-29, 133), (-29, 69), (28, 69), (28, 133)])
sketch17.addConstraint([
    Sketcher.Constraint("Vertical", 0),
    Sketcher.Constraint("Horizontal", 1),
    Sketcher.Constraint("Vertical", 2),
    Sketcher.Constraint("Horizontal", 3),
    Sketcher.Constraint("DistanceY", 0, 2, 0, 1, Q("63.68901 mm")),
    Sketcher.Constraint("DistanceX", -1, 1, 1, 2, Q("28.115202 mm")),
    Sketcher.Constraint("DistanceX", 1, 1, 1, 2, Q("57.454796 mm")),
    Sketcher.Constraint("DistanceY", -1, 1, 0, 2, Q("68.955628 mm")),
])
pad17 = body30.newObject("PartDesign::Pad", "Pad016")
pad17.Profile = sketch17
pad17.Length = 30
body31 = doc.addObject("PartDesign::Body", "Body030")
doc.recompute()

body30.Placement = App.Placement(V(0, 14.5, 0), App.Rotation(V(0, 0, 1), 0))
boolean26 = body31.newObject("PartDesign::Boolean", "Boolean025")
boolean26.Type = "Fuse"
boolean26.addObjects([body30])
body32 = doc.addObject("PartDesign::Body", "Body031")

sketch18 = body32.newObject("Sketcher::SketchObject", "Sketch017")
sketch18.AttachmentSupport = (doc.getObject("XZ_Plane031"), [""])
sketch18.MapMode = "FlatFace"
sketch18.AttachmentOffset = App.Placement(V(0, 0, -0.01), App.Rotation())
add_polygon(sketch18, [(-40, 135), (-40, 70), (40, 70), (40, 135)])
sketch18.addConstraint([
    Sketcher.Constraint("Vertical", 0),
    Sketcher.Constraint("Horizontal", 1),
    Sketcher.Constraint("Vertical", 2),
    Sketcher.Constraint("Horizontal", 3),
    Sketcher.Constraint("DistanceX", 1, 1, 1, 2, Q("80.79409 mm")),
    Sketcher.Constraint("DistanceY", 0, 2, 0, 1, Q("65.794357 mm")),
    Sketcher.Constraint("DistanceX", 0, 2, -1, 1, Q("40.343769 mm")),
    Sketcher.Constraint("DistanceY", -1, 1, 0, 2, Q("69.560181 mm")),
])
pad18 = body32.newObject("PartDesign::Pad", "Pad017")
pad18.Profile = sketch18
pad18.Length = 32
body33 = doc.addObject("PartDesign::Body", "Body032")
doc.recompute()

body32.Placement = App.Placement(V(0, 16.5, 0), App.Rotation(V(0, 0, 1), 0))
boolean27 = body33.newObject("PartDesign::Boolean", "Boolean026")
boolean27.Type = "Fuse"
boolean27.addObjects([body32])
doc.recompute()

boolean28 = body33.newObject("PartDesign::Boolean", "Boolean027")
boolean28.Type = "Cut"
boolean28.addObjects([body31])
doc.recompute()

boolean29 = body33.newObject("PartDesign::Boolean", "Boolean028")
boolean29.Type = "Cut"
boolean29.addObjects([body29])
doc.recompute()

boolean30 = body33.newObject("PartDesign::Boolean", "Boolean029")
boolean30.Type = "Cut"
boolean30.addObjects([body27])
doc.recompute()

boolean31 = body33.newObject("PartDesign::Boolean", "Boolean030")
boolean31.Type = "Cut"
boolean31.addObjects([body25])
body34 = doc.addObject("PartDesign::Body", "Body033")
body34.AllowCompound = True

sketch19 = body34.newObject("Sketcher::SketchObject", "Sketch018")
sketch19.AttachmentSupport = (doc.getObject("XZ_Plane033"), [""])
sketch19.MapMode = "FlatFace"
sketch19.AttachmentOffset = App.Placement(V(0, 0, 13), App.Rotation())
sketch19.addGeometry([
    Part.Circle(V(-34.4, 98.1, 0), V(0, 0, 1), 1.5),
    Part.Circle(V(33.8, 97.2, 0), V(0, 0, 1), 1.5),
    Part.Circle(V(-34.4, 81, 0), V(0, 0, 1), 1.5),
    Part.Circle(V(33, 80.4, 0), V(0, 0, 1), 1.5),
], False)
sketch19.addConstraint([
    Sketcher.Constraint("Equal", 0, 1),
    Sketcher.Constraint("Equal", 1, 2),
    Sketcher.Constraint("Equal", 2, 3),
    Sketcher.Constraint("Diameter", 0, Q("3 mm")),
    Sketcher.Constraint("DistanceY", -1, 1, 2, 3, Q("81.008202 mm")),
    Sketcher.Constraint("DistanceX", 0, 3, -1, 1, Q("34.356541 mm")),
    Sketcher.Constraint("DistanceY", -1, 1, 0, 3, Q("98.11187 mm")),
    Sketcher.Constraint("DistanceX", -1, 1, 1, 3, Q("33.767742 mm")),
    Sketcher.Constraint("DistanceY", -1, 1, 1, 3, Q("97.22776 mm")),
    Sketcher.Constraint("DistanceY", -1, 1, 3, 3, Q("80.42675 mm")),
    Sketcher.Constraint("DistanceX", 3, 3, 1, 3, Q("0.769989 mm")),
    Sketcher.Constraint("DistanceX", 2, 3, 3, 3, Q("67.359978 mm")),
])
pad19 = body34.newObject("PartDesign::Pad", "Pad018")
pad19.Profile = sketch19
pad19.Length = 10
body35 = doc.addObject("PartDesign::Body", "Body034")
body35.AllowCompound = True

sketch20 = body35.newObject("Sketcher::SketchObject", "Sketch019")
sketch20.AttachmentSupport = (doc.getObject("XZ_Plane034"), [""])
sketch20.MapMode = "FlatFace"
sketch20.AttachmentOffset = App.Placement(V(0, 0, -0.01), App.Rotation())
sketch20.addGeometry([
    Part.ArcOfCircle(Part.Circle(V(30.7, 80.5, 0), V(0, 0, 1), 2.5), math.radians(90), math.radians(270)),
    Part.LineSegment(V(30.7, 78, 0), V(33.8, 78, 0)),
    Part.ArcOfCircle(Part.Circle(V(33.8, 80.5, 0), V(0, 0, 1), 2.5), math.radians(-90), math.radians(90)),
    Part.LineSegment(V(33.8, 83, 0), V(30.7, 83, 0)),
    Part.ArcOfCircle(Part.Circle(V(31.1, 97.3, 0), V(0, 0, 1), 2.5), math.radians(90), math.radians(270)),
    Part.LineSegment(V(31.1, 94.8, 0), V(34.7, 94.8, 0)),
    Part.ArcOfCircle(Part.Circle(V(34.7, 97.3, 0), V(0, 0, 1), 2.5), math.radians(-90), math.radians(90)),
    Part.LineSegment(V(34.7, 99.8, 0), V(31.1, 99.8, 0)),
    Part.ArcOfCircle(Part.Circle(V(-35.6, 98.1, 0), V(0, 0, 1), 2.5), math.radians(90), math.radians(270)),
    Part.LineSegment(V(-35.6, 95.6, 0), V(-31.9, 95.6, 0)),
    Part.ArcOfCircle(Part.Circle(V(-31.9, 98.1, 0), V(0, 0, 1), 2.5), math.radians(-90), math.radians(90)),
    Part.LineSegment(V(-31.9, 100.7, 0), V(-35.6, 100.7, 0)),
    Part.ArcOfCircle(Part.Circle(V(-36, 81.2, 0), V(0, 0, 1), 2.9), math.radians(90), math.radians(270)),
    Part.LineSegment(V(-36, 78.3, 0), V(-32.2, 78.3, 0)),
    Part.ArcOfCircle(Part.Circle(V(-32.2, 81.2, 0), V(0, 0, 1), 2.9), math.radians(-90), math.radians(90)),
    Part.LineSegment(V(-32.2, 84, 0), V(-36, 84, 0)),
], False)
sketch20.addConstraint([
    Sketcher.Constraint("Tangent", 0, 2, 1, 1),
    Sketcher.Constraint("Tangent", 1, 2, 2, 1),
    Sketcher.Constraint("Tangent", 2, 2, 3, 1),
    Sketcher.Constraint("Tangent", 3, 2, 0, 1),
    Sketcher.Constraint("Tangent", 4, 2, 5, 1),
    Sketcher.Constraint("Tangent", 5, 2, 6, 1),
    Sketcher.Constraint("Tangent", 6, 2, 7, 1),
    Sketcher.Constraint("Tangent", 7, 2, 4, 1),
    Sketcher.Constraint("Tangent", 8, 2, 9, 1),
    Sketcher.Constraint("Tangent", 9, 2, 10, 1),
    Sketcher.Constraint("Tangent", 10, 2, 11, 1),
    Sketcher.Constraint("Tangent", 11, 2, 8, 1),
    Sketcher.Constraint("Tangent", 12, 2, 13, 1),
    Sketcher.Constraint("Tangent", 13, 2, 14, 1),
    Sketcher.Constraint("Tangent", 14, 2, 15, 1),
    Sketcher.Constraint("Tangent", 15, 2, 12, 1),
    Sketcher.Constraint("Horizontal", 1),
    Sketcher.Constraint("Horizontal", 3),
    Sketcher.Constraint("Horizontal", 5),
    Sketcher.Constraint("Horizontal", 7),
    Sketcher.Constraint("Horizontal", 9),
    Sketcher.Constraint("Horizontal", 11),
    Sketcher.Constraint("Horizontal", 13),
    Sketcher.Constraint("Horizontal", 15),
    Sketcher.Constraint("Radius", 4, Q("2.51255 mm")),
    Sketcher.Constraint("Radius", 12, Q("2.868339 mm")),
    Sketcher.Constraint("DistanceX", 5, 1, 5, 2, Q("3.587299 mm")),
    Sketcher.Constraint("Radius", 0, Q("2.528214 mm")),
    Sketcher.Constraint("Radius", 8, Q("2.526733 mm")),
    Sketcher.Constraint("DistanceX", 1, 1, 1, 2, Q("3.079881 mm")),
    Sketcher.Constraint("DistanceX", 12, 3, 13, 2, Q("3.847802 mm")),
    Sketcher.Constraint("DistanceX", 9, 1, 9, 2, Q("3.784746 mm")),
    Sketcher.Constraint("DistanceY", -1, 1, 0, 3, Q("80.496292 mm")),
    Sketcher.Constraint("DistanceX", 10, 3, -1, 1, Q("31.860769 mm")),
    Sketcher.Constraint("DistanceX", 12, 3, -1, 1, Q("36.032362 mm")),
    Sketcher.Constraint("DistanceY", -1, 1, 12, 3, Q("81.178132 mm")),
    Sketcher.Constraint("DistanceY", -1, 1, 10, 2, Q("100.657669 mm")),
    Sketcher.Constraint("DistanceX", 0, 3, 4, 3, Q("0.414289 mm")),
    Sketcher.Constraint("DistanceX", 8, 3, 4, 3, Q("66.733619 mm")),
    Sketcher.Constraint("DistanceY", 4, 3, 8, 3, Q("0.79982 mm")),
])
pad20 = body35.newObject("PartDesign::Pad", "Pad019")
pad20.Profile = sketch20
pad20.Length = 2
body36 = doc.addObject("PartDesign::Body", "Body035")
body36.AllowCompound = True
doc.recompute()

body35.Placement = App.Placement(V(0, -13.5, 0), App.Rotation(V(0, 0, 1), 0))
boolean32 = body36.newObject("PartDesign::Boolean", "Boolean031")
boolean32.Type = "Fuse"
boolean32.addObjects([body35])
doc.recompute()

boolean33 = body36.newObject("PartDesign::Boolean", "Boolean032")
boolean33.Type = "Cut"
boolean33.addObjects([body34])
body37 = doc.addObject("PartDesign::Body", "Body036")

sketch21 = body37.newObject("Sketcher::SketchObject", "Sketch020")
sketch21.AttachmentSupport = (doc.getObject("XY_Plane036"), [""])
sketch21.MapMode = "FlatFace"
add_polygon(sketch21, [(-40.4, 16.5), (-40.4, 14.5), (40.4, 14.5), (40.4, 16.5)])
sketch21.addConstraint([
    Sketcher.Constraint("Vertical", 0),
    Sketcher.Constraint("Horizontal", 1),
    Sketcher.Constraint("Vertical", 2),
    Sketcher.Constraint("Horizontal", 3),
    Sketcher.Constraint("DistanceX", 1, 1, 1, 2, Q("80.805672 mm")),
    Sketcher.Constraint("DistanceY", 0, 2, 0, 1, Q("1.984962 mm")),
    Sketcher.Constraint("DistanceX", 0, 2, -1, 1, Q("40.366081 mm")),
    Sketcher.Constraint("DistanceY", -1, 1, 2, 2, Q("16.519909 mm")),
])
pad21 = body37.newObject("PartDesign::Pad", "Pad020")
pad21.Profile = sketch21
pad21.Length = 11
body38 = doc.addObject("PartDesign::Body", "Body037")
doc.recompute()

body37.Placement = App.Placement(V(0, 0, 58.7), App.Rotation(V(0, 0, 1), 0))
boolean34 = body38.newObject("PartDesign::Boolean", "Boolean033")
boolean34.Type = "Fuse"
boolean34.addObjects([body37])

doc.recompute()
